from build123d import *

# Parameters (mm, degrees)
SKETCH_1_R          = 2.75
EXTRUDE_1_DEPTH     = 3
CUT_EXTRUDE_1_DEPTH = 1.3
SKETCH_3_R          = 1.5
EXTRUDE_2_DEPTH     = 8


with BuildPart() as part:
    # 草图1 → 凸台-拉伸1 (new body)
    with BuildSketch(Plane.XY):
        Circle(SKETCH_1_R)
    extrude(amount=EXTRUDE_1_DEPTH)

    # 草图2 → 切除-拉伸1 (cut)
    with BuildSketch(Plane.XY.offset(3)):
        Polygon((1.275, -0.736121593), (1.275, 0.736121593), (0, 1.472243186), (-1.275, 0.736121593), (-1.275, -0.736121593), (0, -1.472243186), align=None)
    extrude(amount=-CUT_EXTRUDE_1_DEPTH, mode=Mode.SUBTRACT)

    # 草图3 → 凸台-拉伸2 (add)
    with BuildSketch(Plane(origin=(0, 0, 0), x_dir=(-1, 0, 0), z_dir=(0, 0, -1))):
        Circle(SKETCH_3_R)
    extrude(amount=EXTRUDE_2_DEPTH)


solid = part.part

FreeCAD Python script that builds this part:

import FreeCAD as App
import Part
import Sketcher

V = App.Vector
Q = App.Units.Quantity

doc = App.newDocument("Part")
body = doc.addObject("PartDesign::Body", "Body")

# Sketch on XY plane
sketch1 = doc.addObject("Sketcher::SketchObject", "Sketch")
body.addObject(sketch1)
sketch1.AttachmentSupport = (doc.XY_Plane, [""])
sketch1.MapMode = "FlatFace"
sketch1.addGeometry(Part.Circle(V(0, 0, 0), V(0, 0, 1), 2.8), False)
sketch1.addConstraint(Sketcher.Constraint("Coincident", 0, 3, -1, 1))
sketch1.addConstraint(Sketcher.Constraint("Diameter", 0, Q("5.5 mm")))
pad1 = doc.addObject("PartDesign::Pad", "Pad")
body.addObject(pad1)
pad1.Profile = sketch1
pad1.Length = 3

# Sketch on XY plane
sketch2 = doc.addObject("Sketcher::SketchObject", "Sketch001")
body.addObject(sketch2)
sketch2.AttachmentSupport = (doc.XY_Plane, [""])
sketch2.MapMode = "FlatFace"
sketch2.AttachmentOffset = App.Placement(V(0, 0, 3), App.Rotation())
sketch2.addGeometry(Part.LineSegment(V(1.3, -0.7, 0), V(1.3, 0.7, 0)), False)
sketch2.addGeometry(Part.LineSegment(V(1.3, 0.7, 0), V(0, 1.5, 0)), False)
sketch2.addGeometry(Part.LineSegment(V(0, 1.5, 0), V(-1.3, 0.7, 0)), False)
sketch2.addGeometry(Part.LineSegment(V(-1.3, 0.7, 0), V(-1.3, -0.7, 0)), False)
sketch2.addGeometry(Part.LineSegment(V(-1.3, -0.7, 0), V(0, -1.5, 0)), False)
sketch2.addGeometry(Part.LineSegment(V(0, -1.5, 0), V(1.3, -0.7, 0)), False)
sketch2.addConstraint(Sketcher.Constraint("Coincident", 0, 2, 1, 1))
sketch2.addConstraint(Sketcher.Constraint("Coincident", 1, 2, 2, 1))
sketch2.addConstraint(Sketcher.Constraint("Coincident", 2, 2, 3, 1))
sketch2.addConstraint(Sketcher.Constraint("Coincident", 3, 2, 4, 1))
sketch2.addConstraint(Sketcher.Constraint("Coincident", 4, 2, 5, 1))
sketch2.addConstraint(Sketcher.Constraint("Coincident", 5, 2, 0, 1))
sketch2.addConstraint(Sketcher.Constraint("Vertical", 0))
sketch2.addConstraint(Sketcher.Constraint("Vertical", 3))
sketch2.addConstraint(Sketcher.Constraint("Symmetric", 0, 2, 3, 2, -1, 1))
sketch2.addConstraint(Sketcher.Constraint("Symmetric", 1, 2, 4, 2, -1, 1))
sketch2.addConstraint(Sketcher.Constraint("PointOnObject", 1, 2, -2))
sketch2.addConstraint(Sketcher.Constraint("Parallel", 2, 5))
sketch2.addConstraint(Sketcher.Constraint("Horizontal", 0, 2, 2, 2))
sketch2.addConstraint(Sketcher.Constraint("Angle", 1, Q("150 deg")))
sketch2.addConstraint(Sketcher.Constraint("DistanceX", 2, 2, 0, 2, Q("2.55 mm")))
sketch2.addConstraint(Sketcher.Constraint("DistanceY", 0, 1, 0, 2, Q("1.472243 mm")))
pocket1 = doc.addObject("PartDesign::Pocket", "Pocket")
body.addObject(pocket1)
pocket1.Profile = sketch2
pocket1.Length = 1.3

# Sketch on XY plane
sketch3 = doc.addObject("Sketcher::SketchObject", "Sketch002")
body.addObject(sketch3)
sketch3.AttachmentSupport = (doc.XY_Plane, [""])
sketch3.MapMode = "FlatFace"
sketch3.addGeometry(Part.Circle(V(0, 0, 0), V(0, 0, 1), 1.5), False)
sketch3.addConstraint(Sketcher.Constraint("Coincident", 0, 3, -1, 1))
sketch3.addConstraint(Sketcher.Constraint("Diameter", 0, Q("3 mm")))
pad2 = doc.addObject("PartDesign::Pad", "Pad001")
body.addObject(pad2)
pad2.Profile = sketch3
pad2.Length = 8
pad2.Reversed = True

doc.recompute()
